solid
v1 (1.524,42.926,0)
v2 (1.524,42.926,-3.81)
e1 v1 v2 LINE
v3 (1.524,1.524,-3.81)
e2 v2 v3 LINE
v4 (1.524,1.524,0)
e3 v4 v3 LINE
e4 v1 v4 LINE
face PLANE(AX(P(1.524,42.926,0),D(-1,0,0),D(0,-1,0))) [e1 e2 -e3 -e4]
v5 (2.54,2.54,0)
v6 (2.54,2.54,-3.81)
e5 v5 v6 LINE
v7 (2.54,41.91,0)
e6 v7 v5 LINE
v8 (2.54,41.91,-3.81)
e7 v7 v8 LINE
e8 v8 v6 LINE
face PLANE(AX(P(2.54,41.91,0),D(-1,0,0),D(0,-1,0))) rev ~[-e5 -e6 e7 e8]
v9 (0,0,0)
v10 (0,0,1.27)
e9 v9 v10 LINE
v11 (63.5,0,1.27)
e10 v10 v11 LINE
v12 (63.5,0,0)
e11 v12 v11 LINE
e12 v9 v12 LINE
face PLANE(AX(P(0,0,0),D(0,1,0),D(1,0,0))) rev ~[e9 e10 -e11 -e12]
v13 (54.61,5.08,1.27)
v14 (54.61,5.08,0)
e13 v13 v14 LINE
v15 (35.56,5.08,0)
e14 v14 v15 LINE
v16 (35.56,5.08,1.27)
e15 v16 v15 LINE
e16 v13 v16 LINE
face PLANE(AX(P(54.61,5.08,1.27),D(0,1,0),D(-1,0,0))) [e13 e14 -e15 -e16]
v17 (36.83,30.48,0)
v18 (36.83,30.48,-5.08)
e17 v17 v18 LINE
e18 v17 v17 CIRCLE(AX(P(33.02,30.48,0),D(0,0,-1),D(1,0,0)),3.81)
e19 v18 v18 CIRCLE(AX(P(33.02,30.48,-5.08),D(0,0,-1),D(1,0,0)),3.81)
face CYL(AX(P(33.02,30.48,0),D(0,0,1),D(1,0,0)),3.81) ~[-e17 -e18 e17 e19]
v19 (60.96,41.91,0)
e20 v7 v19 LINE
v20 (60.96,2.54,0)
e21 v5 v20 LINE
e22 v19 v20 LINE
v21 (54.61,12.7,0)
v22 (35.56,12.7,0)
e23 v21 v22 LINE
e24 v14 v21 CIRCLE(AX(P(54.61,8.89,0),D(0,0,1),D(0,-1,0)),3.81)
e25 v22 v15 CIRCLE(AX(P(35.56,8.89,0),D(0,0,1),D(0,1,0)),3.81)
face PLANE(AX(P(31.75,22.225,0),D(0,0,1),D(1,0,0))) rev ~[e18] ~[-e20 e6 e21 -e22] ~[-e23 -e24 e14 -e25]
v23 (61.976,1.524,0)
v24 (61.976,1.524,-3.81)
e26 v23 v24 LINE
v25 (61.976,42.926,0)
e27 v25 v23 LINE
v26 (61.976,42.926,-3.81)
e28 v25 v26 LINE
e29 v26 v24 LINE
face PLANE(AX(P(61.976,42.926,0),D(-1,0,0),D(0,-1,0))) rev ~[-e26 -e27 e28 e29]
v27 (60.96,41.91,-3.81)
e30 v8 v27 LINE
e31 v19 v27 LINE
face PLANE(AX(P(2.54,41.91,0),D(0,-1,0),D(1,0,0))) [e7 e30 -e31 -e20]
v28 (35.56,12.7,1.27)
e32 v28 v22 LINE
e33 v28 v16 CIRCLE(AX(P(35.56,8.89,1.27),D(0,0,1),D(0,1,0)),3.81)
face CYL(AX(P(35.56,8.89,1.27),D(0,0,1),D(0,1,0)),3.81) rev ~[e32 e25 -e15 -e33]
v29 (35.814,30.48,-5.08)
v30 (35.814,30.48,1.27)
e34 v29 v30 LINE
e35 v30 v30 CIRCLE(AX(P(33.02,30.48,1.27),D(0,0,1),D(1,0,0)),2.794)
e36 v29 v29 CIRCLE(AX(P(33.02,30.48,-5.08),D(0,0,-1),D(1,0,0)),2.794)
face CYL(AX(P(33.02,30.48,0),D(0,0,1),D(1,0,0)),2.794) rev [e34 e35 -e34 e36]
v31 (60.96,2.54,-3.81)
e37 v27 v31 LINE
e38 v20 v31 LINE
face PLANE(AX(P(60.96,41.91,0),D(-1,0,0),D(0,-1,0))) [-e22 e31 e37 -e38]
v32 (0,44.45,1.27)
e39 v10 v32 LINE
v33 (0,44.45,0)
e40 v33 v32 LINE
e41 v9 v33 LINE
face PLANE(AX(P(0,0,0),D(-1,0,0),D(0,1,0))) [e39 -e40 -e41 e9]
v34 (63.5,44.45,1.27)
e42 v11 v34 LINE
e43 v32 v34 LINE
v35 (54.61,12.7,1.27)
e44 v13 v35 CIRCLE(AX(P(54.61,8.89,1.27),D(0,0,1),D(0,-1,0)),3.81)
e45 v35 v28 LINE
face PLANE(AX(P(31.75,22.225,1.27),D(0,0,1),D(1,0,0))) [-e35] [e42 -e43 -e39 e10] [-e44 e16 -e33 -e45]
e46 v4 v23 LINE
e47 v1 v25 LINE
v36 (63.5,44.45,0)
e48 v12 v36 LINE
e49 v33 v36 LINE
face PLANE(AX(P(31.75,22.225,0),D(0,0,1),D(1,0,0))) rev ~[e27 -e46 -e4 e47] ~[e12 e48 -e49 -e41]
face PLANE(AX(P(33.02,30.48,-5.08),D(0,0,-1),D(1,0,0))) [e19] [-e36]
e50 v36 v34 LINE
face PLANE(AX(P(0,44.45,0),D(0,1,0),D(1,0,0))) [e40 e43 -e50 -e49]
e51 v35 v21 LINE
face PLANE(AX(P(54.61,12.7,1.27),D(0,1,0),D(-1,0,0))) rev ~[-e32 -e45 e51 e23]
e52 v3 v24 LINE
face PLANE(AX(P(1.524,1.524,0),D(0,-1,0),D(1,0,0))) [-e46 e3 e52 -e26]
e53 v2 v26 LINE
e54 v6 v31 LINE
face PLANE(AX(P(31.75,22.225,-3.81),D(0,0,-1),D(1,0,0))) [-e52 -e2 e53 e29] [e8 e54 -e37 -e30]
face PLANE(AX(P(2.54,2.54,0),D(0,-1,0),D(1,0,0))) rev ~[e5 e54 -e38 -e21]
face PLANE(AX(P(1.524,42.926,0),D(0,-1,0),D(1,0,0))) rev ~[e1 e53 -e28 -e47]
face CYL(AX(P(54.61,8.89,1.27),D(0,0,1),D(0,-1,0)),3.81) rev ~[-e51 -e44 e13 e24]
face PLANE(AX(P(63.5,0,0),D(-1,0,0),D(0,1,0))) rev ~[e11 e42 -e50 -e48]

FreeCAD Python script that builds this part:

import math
import FreeCAD as App
import Part
import Sketcher
from FreeCAD import Vector
Q = App.Units.Quantity

doc = App.newDocument("Part")
body = doc.addObject("PartDesign::Body", "Body")

# Sketch on XY plane
sketch1 = body.newObject("Sketcher::SketchObject", "Sketch")
sketch1.AttachmentSupport = (doc.getObject("XY_Plane"), [""])
sketch1.MapMode = "FlatFace"
sketch1.addGeometry([
    Part.LineSegment(Vector(0, 44.45, 0), Vector(0, 0, 0)),
    Part.LineSegment(Vector(0, 0, 0), Vector(63.5, 0, 0)),
    Part.LineSegment(Vector(63.5, 0, 0), Vector(63.5, 44.45, 0)),
    Part.LineSegment(Vector(63.5, 44.45, 0), Vector(0, 44.45, 0)),
], False)
sketch1.addConstraint([
    Sketcher.Constraint("Coincident", 0, 2, 1, 1),
    Sketcher.Constraint("Coincident", 1, 2, 2, 1),
    Sketcher.Constraint("Coincident", 2, 2, 3, 1),
    Sketcher.Constraint("Coincident", 3, 2, 0, 1),
    Sketcher.Constraint("Vertical", 0),
    Sketcher.Constraint("Horizontal", 1),
    Sketcher.Constraint("Vertical", 2),
    Sketcher.Constraint("Horizontal", 3),
    Sketcher.Constraint("Coincident", 0, 2, -1, 1),
    Sketcher.Constraint("DistanceX", 1, 1, 1, 2, Q("2.5 in")),
    Sketcher.Constraint("DistanceY", 0, 2, 0, 1, Q("1.75 in")),
])
pad1 = body.newObject("PartDesign::Pad", "Pad")
pad1.Profile = sketch1
pad1.Length = Q("0.05 in")

# Sketch on XY plane
sketch2 = body.newObject("Sketcher::SketchObject", "Sketch001")
sketch2.AttachmentSupport = (doc.getObject("XY_Plane"), [""])
sketch2.MapMode = "FlatFace"
sketch2.addGeometry([
    Part.LineSegment(Vector(1.524, 1.524, 0), Vector(1.524, 42.926, 0)),  # 0
    Part.LineSegment(Vector(1.524, 42.926, 0), Vector(61.976, 42.926, 0)),  # 1
    Part.LineSegment(Vector(61.976, 42.926, 0), Vector(61.976, 1.524, 0)),  # 2
    Part.LineSegment(Vector(61.976, 1.524, 0), Vector(1.524, 1.524, 0)),  # 3
    Part.LineSegment(Vector(60.96, 41.91, 0), Vector(2.54, 41.91, 0)),  # 4
    Part.LineSegment(Vector(2.54, 41.91, 0), Vector(2.54, 2.54, 0)),  # 5
    Part.LineSegment(Vector(2.54, 2.54, 0), Vector(60.96, 2.54, 0)),  # 6
    Part.LineSegment(Vector(60.96, 2.54, 0), Vector(60.96, 41.91, 0)),  # 7
], False)
sketch2.addConstraint([
    Sketcher.Constraint("Coincident", 0, 2, 1, 1),
    Sketcher.Constraint("Coincident", 1, 2, 2, 1),
    Sketcher.Constraint("Coincident", 2, 2, 3, 1),
    Sketcher.Constraint("Coincident", 3, 2, 0, 1),
    Sketcher.Constraint("Coincident", 4, 2, 5, 1),
    Sketcher.Constraint("Coincident", 5, 2, 6, 1),
    Sketcher.Constraint("Coincident", 6, 2, 7, 1),
    Sketcher.Constraint("Coincident", 7, 2, 4, 1),
    Sketcher.Constraint("Vertical", 0),
    Sketcher.Constraint("Horizontal", 1),
    Sketcher.Constraint("Vertical", 2),
    Sketcher.Constraint("Horizontal", 3),
    Sketcher.Constraint("Horizontal", 4),
    Sketcher.Constraint("Vertical", 5),
    Sketcher.Constraint("Horizontal", 6),
    Sketcher.Constraint("Vertical", 7),
    Sketcher.Constraint("DistanceX", 4, 2, 4, 1, Q("2.3 in")),
    Sketcher.Constraint("DistanceX", 1, 1, 1, 2, Q("2.38 in")),
    Sketcher.Constraint("DistanceY", 0, 1, 0, 2, Q("1.63 in")),
    Sketcher.Constraint("DistanceY", 5, 2, 5, 1, Q("1.55 in")),
    Sketcher.Constraint("DistanceX", -1, 1, 4, 2, Q("0.1 in")),
    Sketcher.Constraint("DistanceY", -1, 1, 5, 2, Q("0.1 in")),
    Sketcher.Constraint("DistanceX", -1, 1, 0, 2, Q("0.06 in")),
    Sketcher.Constraint("DistanceY", -1, 1, 0, 2, Q("1.69 in")),
])
pad2 = body.newObject("PartDesign::Pad", "Pad001")
pad2.Profile = sketch2
pad2.Length = Q("0.15 in")
pad2.Reversed = True

# Sketch on XY plane
sketch3 = body.newObject("Sketcher::SketchObject", "Sketch002")
sketch3.AttachmentSupport = (doc.getObject("XY_Plane"), [""])
sketch3.MapMode = "FlatFace"
sketch3.AttachmentOffset = App.Placement(Vector(0, 0, 0.05 * 25.4), App.Rotation())
sketch3.addGeometry([
    Part.Circle(Vector(33.02, 30.48, 0), Vector(0, 0, 1), 2.794),  # 0
    Part.ArcOfCircle(Part.Circle(Vector(54.61, 8.89, 0), Vector(0, 0, 1), 3.81), math.radians(-90), math.radians(90)),  # 1
    Part.LineSegment(Vector(54.61, 12.7, 0), Vector(35.56, 12.7, 0)),  # 2
    Part.ArcOfCircle(Part.Circle(Vector(35.56, 8.89, 0), Vector(0, 0, 1), 3.81), math.radians(90), math.radians(270)),  # 3
    Part.LineSegment(Vector(35.56, 5.08, 0), Vector(54.61, 5.08, 0)),  # 4
], False)
sketch3.addConstraint([
    Sketcher.Constraint("Tangent", 1, 2, 2, 1),
    Sketcher.Constraint("Tangent", 2, 2, 3, 1),
    Sketcher.Constraint("Tangent", 3, 2, 4, 1),
    Sketcher.Constraint("Tangent", 4, 2, 1, 1),
    Sketcher.Constraint("Horizontal", 2),
    Sketcher.Constraint("Horizontal", 4),
    Sketcher.Constraint("Diameter", 0, Q("0.22 in")),
    Sketcher.Constraint("Radius", 1, Q("0.15 in")),
    Sketcher.Constraint("DistanceY", 3, 2, 0, 3, Q("1 in")),
    Sketcher.Constraint("DistanceX", 2, 2, 2, 1, Q("0.75 in")),
    Sketcher.Constraint("DistanceX", -1, 1, 0, 3, Q("1.3 in")),
    Sketcher.Constraint("DistanceY", -1, 1, 0, 3, Q("1.2 in")),
    Sketcher.Constraint("DistanceX", -1, 1, 3, 3, Q("1.4 in")),
])
pocket1 = body.newObject("PartDesign::Pocket", "Pocket")
pocket1.Profile = sketch3
pocket1.Type = "ThroughAll"

# Sketch on XY plane
sketch4 = body.newObject("Sketcher::SketchObject", "Sketch003")
sketch4.AttachmentSupport = (doc.getObject("XY_Plane"), [""])
sketch4.MapMode = "FlatFace"
sketch4.addGeometry([
    Part.Circle(Vector(33.02, 30.48, 0), Vector(0, 0, 1), 3.81),
    Part.Circle(Vector(33.02, 30.48, 0), Vector(0, 0, 1), 2.794),
], False)
sketch4.addConstraint([
    Sketcher.Constraint("Coincident", 1, 3, 0, 3),
    Sketcher.Constraint("Diameter", 0, Q("0.3 in")),
    Sketcher.Constraint("Diameter", 1, Q("0.22 in")),
    Sketcher.Constraint("DistanceX", -1, 1, 0, 3, Q("1.3 in")),
    Sketcher.Constraint("DistanceY", -1, 1, 0, 3, Q("1.2 in")),
])
pad3 = body.newObject("PartDesign::Pad", "Pad002")
pad3.Profile = sketch4
pad3.Length = Q("0.2 in")
pad3.Reversed = True

doc.recompute()
